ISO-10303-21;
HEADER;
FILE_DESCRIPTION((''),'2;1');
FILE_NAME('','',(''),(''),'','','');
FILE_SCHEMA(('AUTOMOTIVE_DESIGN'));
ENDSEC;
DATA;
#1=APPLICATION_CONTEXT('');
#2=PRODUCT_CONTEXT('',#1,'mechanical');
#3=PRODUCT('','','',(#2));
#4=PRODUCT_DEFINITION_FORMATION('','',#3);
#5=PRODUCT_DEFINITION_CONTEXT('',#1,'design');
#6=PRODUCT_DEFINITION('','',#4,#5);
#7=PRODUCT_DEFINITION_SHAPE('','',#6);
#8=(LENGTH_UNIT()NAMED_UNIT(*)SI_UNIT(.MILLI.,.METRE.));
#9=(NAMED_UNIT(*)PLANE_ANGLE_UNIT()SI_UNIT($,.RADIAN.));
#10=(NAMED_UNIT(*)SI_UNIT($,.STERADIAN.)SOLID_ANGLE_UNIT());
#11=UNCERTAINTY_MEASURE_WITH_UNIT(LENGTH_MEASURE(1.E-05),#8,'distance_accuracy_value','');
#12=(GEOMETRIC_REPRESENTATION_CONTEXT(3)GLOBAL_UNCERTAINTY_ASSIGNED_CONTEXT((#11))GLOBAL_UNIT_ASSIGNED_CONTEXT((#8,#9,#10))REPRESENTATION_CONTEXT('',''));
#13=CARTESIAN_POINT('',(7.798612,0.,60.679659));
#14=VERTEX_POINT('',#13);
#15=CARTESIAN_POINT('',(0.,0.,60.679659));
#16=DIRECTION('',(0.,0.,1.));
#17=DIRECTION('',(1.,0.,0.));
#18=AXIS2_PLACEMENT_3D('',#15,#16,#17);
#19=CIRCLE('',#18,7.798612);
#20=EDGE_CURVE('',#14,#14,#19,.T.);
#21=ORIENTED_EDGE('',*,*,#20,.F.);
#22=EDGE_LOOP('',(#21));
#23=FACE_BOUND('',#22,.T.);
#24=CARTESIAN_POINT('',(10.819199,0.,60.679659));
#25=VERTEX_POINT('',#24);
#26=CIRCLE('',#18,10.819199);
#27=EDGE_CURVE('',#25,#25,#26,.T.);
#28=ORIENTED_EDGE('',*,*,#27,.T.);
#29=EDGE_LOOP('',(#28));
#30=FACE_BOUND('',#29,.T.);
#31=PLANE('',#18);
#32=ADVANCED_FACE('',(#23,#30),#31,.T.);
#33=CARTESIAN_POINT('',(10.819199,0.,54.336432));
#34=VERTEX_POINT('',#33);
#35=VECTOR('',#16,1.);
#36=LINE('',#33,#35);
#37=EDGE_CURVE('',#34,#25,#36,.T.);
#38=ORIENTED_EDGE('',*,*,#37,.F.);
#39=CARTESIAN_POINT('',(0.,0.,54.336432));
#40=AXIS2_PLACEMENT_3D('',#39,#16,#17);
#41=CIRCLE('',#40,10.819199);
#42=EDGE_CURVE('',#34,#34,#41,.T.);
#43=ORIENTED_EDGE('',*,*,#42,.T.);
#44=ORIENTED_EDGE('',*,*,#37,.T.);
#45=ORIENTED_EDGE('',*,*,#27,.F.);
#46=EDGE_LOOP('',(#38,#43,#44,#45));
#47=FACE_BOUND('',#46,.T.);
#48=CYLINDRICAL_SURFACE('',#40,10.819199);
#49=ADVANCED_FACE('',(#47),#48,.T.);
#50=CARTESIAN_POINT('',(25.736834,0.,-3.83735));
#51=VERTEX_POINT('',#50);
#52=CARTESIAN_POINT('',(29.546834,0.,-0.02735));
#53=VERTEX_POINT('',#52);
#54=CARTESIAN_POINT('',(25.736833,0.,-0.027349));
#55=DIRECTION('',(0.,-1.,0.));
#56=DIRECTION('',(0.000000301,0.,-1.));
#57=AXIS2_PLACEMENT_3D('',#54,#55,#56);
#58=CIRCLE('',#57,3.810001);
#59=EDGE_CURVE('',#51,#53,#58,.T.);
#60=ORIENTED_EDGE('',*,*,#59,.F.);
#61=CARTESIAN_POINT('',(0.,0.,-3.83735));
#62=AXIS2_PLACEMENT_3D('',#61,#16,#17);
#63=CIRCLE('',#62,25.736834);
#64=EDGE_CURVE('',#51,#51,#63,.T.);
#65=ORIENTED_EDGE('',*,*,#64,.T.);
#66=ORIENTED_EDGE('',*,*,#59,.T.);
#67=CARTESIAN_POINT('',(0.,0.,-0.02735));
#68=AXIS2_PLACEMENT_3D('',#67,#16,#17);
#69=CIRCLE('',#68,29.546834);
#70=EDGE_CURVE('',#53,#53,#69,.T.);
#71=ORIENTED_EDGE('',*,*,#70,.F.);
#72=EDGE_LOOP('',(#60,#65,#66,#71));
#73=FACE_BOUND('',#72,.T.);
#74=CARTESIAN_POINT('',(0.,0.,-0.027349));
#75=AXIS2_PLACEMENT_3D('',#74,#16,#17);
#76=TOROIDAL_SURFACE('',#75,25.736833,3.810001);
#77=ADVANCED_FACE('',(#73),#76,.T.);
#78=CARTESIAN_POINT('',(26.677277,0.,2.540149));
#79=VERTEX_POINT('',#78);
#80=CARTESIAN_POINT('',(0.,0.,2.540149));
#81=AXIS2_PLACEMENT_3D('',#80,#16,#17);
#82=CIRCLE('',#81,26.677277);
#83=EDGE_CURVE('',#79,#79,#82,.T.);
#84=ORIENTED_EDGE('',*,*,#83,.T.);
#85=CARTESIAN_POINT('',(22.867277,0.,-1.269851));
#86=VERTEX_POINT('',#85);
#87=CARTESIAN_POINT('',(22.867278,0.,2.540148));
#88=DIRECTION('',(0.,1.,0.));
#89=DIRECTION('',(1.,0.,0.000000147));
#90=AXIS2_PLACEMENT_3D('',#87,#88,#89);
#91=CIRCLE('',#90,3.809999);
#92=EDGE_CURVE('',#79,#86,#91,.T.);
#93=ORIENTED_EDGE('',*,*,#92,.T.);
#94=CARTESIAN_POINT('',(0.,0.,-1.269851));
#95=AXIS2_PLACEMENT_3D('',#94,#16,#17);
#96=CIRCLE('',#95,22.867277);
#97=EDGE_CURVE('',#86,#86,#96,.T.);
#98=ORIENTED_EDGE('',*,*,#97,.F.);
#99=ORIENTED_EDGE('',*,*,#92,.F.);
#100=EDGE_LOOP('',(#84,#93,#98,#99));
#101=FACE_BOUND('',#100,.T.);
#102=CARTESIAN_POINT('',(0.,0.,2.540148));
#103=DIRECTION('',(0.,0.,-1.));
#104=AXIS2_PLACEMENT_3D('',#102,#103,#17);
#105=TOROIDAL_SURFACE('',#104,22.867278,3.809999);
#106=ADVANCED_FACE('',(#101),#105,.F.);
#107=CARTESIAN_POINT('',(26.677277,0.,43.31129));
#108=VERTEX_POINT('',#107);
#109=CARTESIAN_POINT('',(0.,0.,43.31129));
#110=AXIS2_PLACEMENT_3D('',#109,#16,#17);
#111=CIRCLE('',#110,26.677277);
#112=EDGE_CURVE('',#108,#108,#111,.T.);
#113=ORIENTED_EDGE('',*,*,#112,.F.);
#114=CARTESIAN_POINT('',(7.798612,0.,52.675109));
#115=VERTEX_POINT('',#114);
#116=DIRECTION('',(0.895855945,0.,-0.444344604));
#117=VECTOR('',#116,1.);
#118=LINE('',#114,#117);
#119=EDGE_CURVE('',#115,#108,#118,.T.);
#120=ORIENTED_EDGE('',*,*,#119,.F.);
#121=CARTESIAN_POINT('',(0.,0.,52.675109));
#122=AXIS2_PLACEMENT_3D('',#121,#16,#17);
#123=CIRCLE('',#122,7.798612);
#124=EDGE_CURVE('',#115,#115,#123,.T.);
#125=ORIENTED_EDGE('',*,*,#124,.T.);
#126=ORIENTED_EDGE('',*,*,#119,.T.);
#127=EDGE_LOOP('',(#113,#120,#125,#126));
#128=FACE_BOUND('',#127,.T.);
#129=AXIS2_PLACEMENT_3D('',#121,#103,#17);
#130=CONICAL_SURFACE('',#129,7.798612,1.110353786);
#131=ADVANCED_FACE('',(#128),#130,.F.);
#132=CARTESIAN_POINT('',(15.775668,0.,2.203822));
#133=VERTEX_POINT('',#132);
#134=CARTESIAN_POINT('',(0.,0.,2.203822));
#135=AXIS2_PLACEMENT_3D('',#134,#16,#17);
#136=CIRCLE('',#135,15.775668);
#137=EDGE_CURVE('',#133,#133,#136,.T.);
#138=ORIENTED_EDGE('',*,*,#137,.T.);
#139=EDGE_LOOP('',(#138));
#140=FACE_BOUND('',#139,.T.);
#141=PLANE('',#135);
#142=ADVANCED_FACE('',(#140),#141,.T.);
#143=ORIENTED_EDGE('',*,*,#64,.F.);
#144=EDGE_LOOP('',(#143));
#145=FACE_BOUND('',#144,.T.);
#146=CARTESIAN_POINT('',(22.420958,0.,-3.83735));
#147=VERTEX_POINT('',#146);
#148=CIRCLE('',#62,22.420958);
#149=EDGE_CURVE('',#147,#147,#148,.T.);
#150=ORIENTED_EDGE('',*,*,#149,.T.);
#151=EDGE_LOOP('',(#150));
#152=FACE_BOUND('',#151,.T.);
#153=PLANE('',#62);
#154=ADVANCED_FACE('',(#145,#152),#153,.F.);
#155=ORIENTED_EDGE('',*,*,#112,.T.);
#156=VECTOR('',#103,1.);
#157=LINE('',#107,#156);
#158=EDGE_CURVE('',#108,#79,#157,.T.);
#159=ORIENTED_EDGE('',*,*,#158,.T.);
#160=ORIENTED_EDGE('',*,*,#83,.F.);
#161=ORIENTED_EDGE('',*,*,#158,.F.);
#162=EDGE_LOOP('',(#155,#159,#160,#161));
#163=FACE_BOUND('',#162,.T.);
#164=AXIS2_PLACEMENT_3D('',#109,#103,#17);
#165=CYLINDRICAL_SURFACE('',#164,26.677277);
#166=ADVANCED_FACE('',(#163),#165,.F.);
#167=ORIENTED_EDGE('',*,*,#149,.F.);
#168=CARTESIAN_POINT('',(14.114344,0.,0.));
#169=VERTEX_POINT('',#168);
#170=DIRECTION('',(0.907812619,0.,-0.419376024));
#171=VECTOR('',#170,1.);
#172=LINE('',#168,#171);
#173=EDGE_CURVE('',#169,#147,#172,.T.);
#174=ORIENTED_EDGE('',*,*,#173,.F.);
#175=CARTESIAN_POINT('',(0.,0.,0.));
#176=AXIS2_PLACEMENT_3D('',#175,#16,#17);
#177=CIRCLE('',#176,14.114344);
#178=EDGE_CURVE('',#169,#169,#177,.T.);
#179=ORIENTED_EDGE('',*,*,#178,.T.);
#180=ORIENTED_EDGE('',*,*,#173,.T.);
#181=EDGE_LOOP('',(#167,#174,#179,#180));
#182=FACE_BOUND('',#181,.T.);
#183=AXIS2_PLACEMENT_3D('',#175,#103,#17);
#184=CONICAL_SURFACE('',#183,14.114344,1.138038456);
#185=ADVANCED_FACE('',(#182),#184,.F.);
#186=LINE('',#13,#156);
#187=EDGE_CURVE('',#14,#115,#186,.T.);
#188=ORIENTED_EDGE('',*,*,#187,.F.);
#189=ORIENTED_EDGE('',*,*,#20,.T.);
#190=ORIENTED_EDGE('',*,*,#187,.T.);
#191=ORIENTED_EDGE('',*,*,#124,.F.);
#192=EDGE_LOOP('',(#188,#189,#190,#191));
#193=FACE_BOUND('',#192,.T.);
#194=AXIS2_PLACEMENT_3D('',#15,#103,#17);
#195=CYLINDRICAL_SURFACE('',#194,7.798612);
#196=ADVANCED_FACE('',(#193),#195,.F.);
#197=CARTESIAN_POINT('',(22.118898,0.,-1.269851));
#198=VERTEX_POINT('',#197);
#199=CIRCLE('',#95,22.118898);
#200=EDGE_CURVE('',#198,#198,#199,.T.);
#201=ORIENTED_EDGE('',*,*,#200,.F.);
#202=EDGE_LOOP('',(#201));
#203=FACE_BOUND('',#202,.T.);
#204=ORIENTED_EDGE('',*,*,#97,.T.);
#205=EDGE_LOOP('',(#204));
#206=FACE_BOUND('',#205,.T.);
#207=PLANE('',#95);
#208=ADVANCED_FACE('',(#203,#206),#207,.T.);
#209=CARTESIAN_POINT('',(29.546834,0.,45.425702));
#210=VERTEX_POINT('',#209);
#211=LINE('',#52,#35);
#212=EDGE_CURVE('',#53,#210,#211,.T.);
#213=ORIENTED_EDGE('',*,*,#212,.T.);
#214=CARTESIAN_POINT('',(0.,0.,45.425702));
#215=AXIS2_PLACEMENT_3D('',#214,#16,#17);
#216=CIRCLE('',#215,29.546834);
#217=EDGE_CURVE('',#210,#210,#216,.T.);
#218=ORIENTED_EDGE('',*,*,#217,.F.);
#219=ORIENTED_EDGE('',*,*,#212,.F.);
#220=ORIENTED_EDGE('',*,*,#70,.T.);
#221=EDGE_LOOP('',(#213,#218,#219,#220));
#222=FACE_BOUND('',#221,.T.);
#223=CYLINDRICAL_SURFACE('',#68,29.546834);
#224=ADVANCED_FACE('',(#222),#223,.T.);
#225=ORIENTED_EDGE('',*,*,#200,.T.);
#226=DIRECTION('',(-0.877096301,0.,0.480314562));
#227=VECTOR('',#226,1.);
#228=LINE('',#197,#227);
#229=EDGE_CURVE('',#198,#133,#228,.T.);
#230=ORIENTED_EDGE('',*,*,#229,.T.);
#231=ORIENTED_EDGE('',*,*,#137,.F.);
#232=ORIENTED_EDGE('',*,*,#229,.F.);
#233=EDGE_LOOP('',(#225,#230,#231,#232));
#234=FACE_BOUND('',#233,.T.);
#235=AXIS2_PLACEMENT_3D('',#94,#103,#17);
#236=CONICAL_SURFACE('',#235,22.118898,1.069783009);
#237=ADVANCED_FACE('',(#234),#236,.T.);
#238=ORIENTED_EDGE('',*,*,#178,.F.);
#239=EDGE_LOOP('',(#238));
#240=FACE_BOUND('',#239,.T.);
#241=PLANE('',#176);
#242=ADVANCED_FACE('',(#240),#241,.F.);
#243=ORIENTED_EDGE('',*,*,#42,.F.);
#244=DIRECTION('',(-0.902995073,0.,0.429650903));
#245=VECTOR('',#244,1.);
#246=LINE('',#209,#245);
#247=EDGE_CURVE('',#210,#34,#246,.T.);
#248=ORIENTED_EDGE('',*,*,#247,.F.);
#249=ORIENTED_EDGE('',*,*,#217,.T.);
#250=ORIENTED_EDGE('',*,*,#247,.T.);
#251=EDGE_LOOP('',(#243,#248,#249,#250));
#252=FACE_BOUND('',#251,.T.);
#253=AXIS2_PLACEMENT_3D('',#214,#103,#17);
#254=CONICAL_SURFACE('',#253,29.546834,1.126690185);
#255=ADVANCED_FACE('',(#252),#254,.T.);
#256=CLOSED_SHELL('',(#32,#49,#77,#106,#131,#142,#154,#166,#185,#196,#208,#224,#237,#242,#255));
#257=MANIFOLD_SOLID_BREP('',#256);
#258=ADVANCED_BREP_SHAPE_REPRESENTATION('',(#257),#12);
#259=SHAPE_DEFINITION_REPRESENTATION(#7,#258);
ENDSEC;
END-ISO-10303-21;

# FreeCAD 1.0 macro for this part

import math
import FreeCAD as App
import Part
import Sketcher

V = App.Vector
Q = App.Units.Quantity

doc = App.newDocument("Part")
body = doc.addObject("PartDesign::Body", "Body")

sketch1 = body.newObject("Sketcher::SketchObject", "Sketch")
sketch1.AttachmentSupport = (doc.getObject("XZ_Plane"), [""])
sketch1.MapMode = "FlatFace"
sketch1.addGeometry([
    Part.LineSegment(V(0, 2.203822, 0), V(0, 0, 0)),
    Part.LineSegment(V(0, 0, 0), V(14.114344, 0, 0)),
    Part.LineSegment(V(14.114344, 0, 0), V(22.420958, -3.83735, 0)),
    Part.LineSegment(V(22.420958, -3.83735, 0), V(25.736834, -3.83735, 0)),
    Part.ArcOfCircle(Part.Circle(V(25.736833, -0.027349, 0), V(0, 0, 1), 3.810001), math.radians(-89.999983), math.radians(-0.000017)),
    Part.LineSegment(V(29.546834, -0.02735, 0), V(29.546834, 45.425702, 0)),
    Part.LineSegment(V(29.546834, 45.425702, 0), V(10.819199, 54.336432, 0)),
    Part.LineSegment(V(10.819199, 54.336432, 0), V(10.819199, 60.679659, 0)),
    Part.LineSegment(V(10.819199, 60.679659, 0), V(7.798612, 60.679659, 0)),
    Part.LineSegment(V(7.798612, 60.679659, 0), V(7.798612, 52.675109, 0)),
    Part.LineSegment(V(7.798612, 52.675109, 0), V(26.677277, 43.31129, 0)),
    Part.LineSegment(V(26.677277, 43.31129, 0), V(26.677277, 2.540149, 0)),
    Part.ArcOfCircle(Part.Circle(V(22.867278, 2.540148, 0), V(0, 0, 1), 3.809999), math.radians(-90.000008), math.radians(0.000008)),
    Part.LineSegment(V(22.867277, -1.269851, 0), V(22.118898, -1.269851, 0)),
    Part.LineSegment(V(22.118898, -1.269851, 0), V(15.775668, 2.203822, 0)),
    Part.LineSegment(V(15.775668, 2.203822, 0), V(0, 2.203822, 0)),
], False)
sketch1.addConstraint([
    Sketcher.Constraint("Coincident", 0, 2, 1, 1),
    Sketcher.Constraint("Coincident", 1, 2, 2, 1),
    Sketcher.Constraint("Coincident", 2, 2, 3, 1),
    Sketcher.Constraint("Tangent", 3, 2, 4, 1),
    Sketcher.Constraint("Tangent", 4, 2, 5, 1),
    Sketcher.Constraint("Coincident", 5, 2, 6, 1),
    Sketcher.Constraint("Coincident", 6, 2, 7, 1),
    Sketcher.Constraint("Coincident", 7, 2, 8, 1),
    Sketcher.Constraint("Coincident", 8, 2, 9, 1),
    Sketcher.Constraint("Coincident", 9, 2, 10, 1),
    Sketcher.Constraint("Coincident", 10, 2, 11, 1),
    Sketcher.Constraint("Tangent", 11, 2, 12, 2),
    Sketcher.Constraint("Tangent", 12, 1, 13, 1),
    Sketcher.Constraint("Coincident", 13, 2, 14, 1),
    Sketcher.Constraint("Coincident", 14, 2, 15, 1),
    Sketcher.Constraint("Coincident", 15, 2, 0, 1),
    Sketcher.Constraint("Vertical", 0),
    Sketcher.Constraint("Horizontal", 1),
    Sketcher.Constraint("Horizontal", 3),
    Sketcher.Constraint("Vertical", 5),
    Sketcher.Constraint("Vertical", 7),
    Sketcher.Constraint("Horizontal", 8),
    Sketcher.Constraint("Vertical", 9),
    Sketcher.Constraint("Vertical", 11),
    Sketcher.Constraint("Horizontal", 13),
    Sketcher.Constraint("Horizontal", 15),
    Sketcher.Constraint("Coincident", 0, 2, -1, 1),
    Sketcher.Constraint("Equal", 4, 12),
    Sketcher.Constraint("Radius", 4, Q("0.15 in")),
    Sketcher.Constraint("DistanceX", 13, 2, 13, 1, Q("0.748379 mm")),
    Sketcher.Constraint("DistanceY", 9, 2, 9, 1, Q("8.00455 mm")),
    Sketcher.Constraint("DistanceY", 11, 2, 11, 1, Q("40.771141 mm")),
    Sketcher.Constraint("DistanceX", -1, 1, 6, 2, Q("10.819199 mm")),
    Sketcher.Constraint("DistanceX", -1, 1, 13, 2, Q("22.118898 mm")),
    Sketcher.Constraint("DistanceY", 2, 2, 12, 3, Q("6.377498 mm")),
    Sketcher.Constraint("Distance", 2, Q("9.150142 mm")),
    Sketcher.Constraint("Distance", 14, Q("7.232079 mm")),
    Sketcher.Constraint("DistanceX", 1, 1, 1, 2, Q("14.114344 mm")),
    Sketcher.Constraint("DistanceX", 3, 1, 3, 2, Q("3.315876 mm")),
    Sketcher.Constraint("DistanceX", 8, 2, 8, 1, Q("3.020587 mm")),
    Sketcher.Constraint("DistanceX", 15, 2, 15, 1, Q("15.775668 mm")),
    Sketcher.Constraint("DistanceY", 0, 2, 0, 1, Q("2.203822 mm")),
    Sketcher.Constraint("DistanceY", 5, 1, 5, 2, Q("45.453052 mm")),
    Sketcher.Constraint("DistanceY", 7, 1, 7, 2, Q("6.343227 mm")),
    Sketcher.Constraint("DistanceY", -1, 1, 7, 2, Q("60.679659 mm")),
])
revolution = body.newObject("PartDesign::Revolution", "Revolution")
revolution.Profile = sketch1
revolution.ReferenceAxis = (sketch1, ["V_Axis"])
revolution.Angle = 360

doc.recompute()
